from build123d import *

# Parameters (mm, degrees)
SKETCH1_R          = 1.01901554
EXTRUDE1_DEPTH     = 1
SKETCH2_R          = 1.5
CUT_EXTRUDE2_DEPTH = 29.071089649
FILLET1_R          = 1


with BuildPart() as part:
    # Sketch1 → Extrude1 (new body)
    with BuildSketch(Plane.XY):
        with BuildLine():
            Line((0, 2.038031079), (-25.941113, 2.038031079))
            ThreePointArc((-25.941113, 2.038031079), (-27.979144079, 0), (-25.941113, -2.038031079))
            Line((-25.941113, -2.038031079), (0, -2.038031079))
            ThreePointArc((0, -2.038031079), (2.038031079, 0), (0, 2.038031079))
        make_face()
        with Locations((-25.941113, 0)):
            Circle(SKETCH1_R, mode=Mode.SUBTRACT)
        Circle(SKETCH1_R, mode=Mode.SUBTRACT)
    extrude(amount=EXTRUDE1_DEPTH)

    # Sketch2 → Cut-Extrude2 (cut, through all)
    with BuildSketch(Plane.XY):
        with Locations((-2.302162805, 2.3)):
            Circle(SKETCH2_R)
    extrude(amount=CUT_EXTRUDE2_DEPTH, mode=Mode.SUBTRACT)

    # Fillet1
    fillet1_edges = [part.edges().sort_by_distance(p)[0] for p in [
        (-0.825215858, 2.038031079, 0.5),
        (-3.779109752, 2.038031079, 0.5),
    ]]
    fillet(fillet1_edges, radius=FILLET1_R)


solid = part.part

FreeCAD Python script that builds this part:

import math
import FreeCAD as App
import Part
import Sketcher


def edges_at(feature, points):
    """Names of the edges that pass closest to the given points."""
    edges = feature.Shape.Edges
    near = lambda p: min(range(len(edges)), key=lambda i: edges[i].distToShape(Part.Vertex(*p))[0])
    return sorted({f"Edge{near(p) + 1}" for p in points})

doc = App.newDocument("Part")
body = doc.addObject("PartDesign::Body", "Body")

# Sketch on XY plane
sketch1 = body.newObject("Sketcher::SketchObject", "Sketch")
sketch1.AttachmentSupport = (doc.getObject("XY_Plane"), [""])
sketch1.MapMode = "FlatFace"
sketch1.addGeometry([
    Part.LineSegment(App.Vector(0, 2, 0), App.Vector(-25.9, 2, 0)),  # 0
    Part.ArcOfCircle(Part.Circle(App.Vector(-25.9, 0, 0), App.Vector(0, 0, 1), 2), math.radians(90), math.radians(270)),  # 1
    Part.LineSegment(App.Vector(-25.9, -2, 0), App.Vector(0, -2, 0)),  # 2
    Part.ArcOfCircle(Part.Circle(App.Vector(0, 0, 0), App.Vector(0, 0, 1), 2), math.radians(-90), math.radians(90)),  # 3
    Part.Circle(App.Vector(-25.9, 0, 0), App.Vector(0, 0, 1), 1),  # 4
    Part.Circle(App.Vector(0, 0, 0), App.Vector(0, 0, 1), 1),  # 5
], False)
sketch1.addConstraint([
    Sketcher.Constraint("Tangent", 0, 2, 1, 1),
    Sketcher.Constraint("Tangent", 1, 2, 2, 1),
    Sketcher.Constraint("Tangent", 2, 2, 3, 1),
    Sketcher.Constraint("Tangent", 3, 2, 0, 1),
    Sketcher.Constraint("Horizontal", 0),
    Sketcher.Constraint("Horizontal", 2),
    Sketcher.Constraint("Coincident", 3, 3, -1, 1),
    Sketcher.Constraint("Coincident", 5, 3, -1, 1),
    Sketcher.Constraint("Coincident", 4, 3, 1, 3),
    Sketcher.Constraint("Equal", 4, 5),
    Sketcher.Constraint("Diameter", 4, 2.038031),
    Sketcher.Constraint("Radius", 1, 2.038031),
    Sketcher.Constraint("DistanceX", 0, 2, 0, 1, 25.941113),
])
pad1 = body.newObject("PartDesign::Pad", "Pad")
pad1.Profile = sketch1
pad1.Length = 1

# Sketch on XY plane
sketch2 = body.newObject("Sketcher::SketchObject", "Sketch001")
sketch2.AttachmentSupport = (doc.getObject("XY_Plane"), [""])
sketch2.MapMode = "FlatFace"
sketch2.addGeometry(Part.Circle(App.Vector(-2.3, 2.3, 0), App.Vector(0, 0, 1), 1.5), False)
sketch2.addConstraint([
    Sketcher.Constraint("Diameter", 0, 3.0),
    Sketcher.Constraint("DistanceY", -1, 1, 0, 3, 2.3),
    Sketcher.Constraint("DistanceX", 0, 3, -1, 1, 2.302163),
])
pocket1 = body.newObject("PartDesign::Pocket", "Pocket")
pocket1.Profile = sketch2
pocket1.Type = "ThroughAll"
pocket1.Reversed = True
doc.recompute()

fillet = body.newObject("PartDesign::Fillet", "Fillet")
fillet.Base = (pocket1, edges_at(pocket1, [(-0.825, 2.038, 0.5), (-3.779, 2.038, 0.5)]))
fillet.Radius = 1

doc.recompute()
